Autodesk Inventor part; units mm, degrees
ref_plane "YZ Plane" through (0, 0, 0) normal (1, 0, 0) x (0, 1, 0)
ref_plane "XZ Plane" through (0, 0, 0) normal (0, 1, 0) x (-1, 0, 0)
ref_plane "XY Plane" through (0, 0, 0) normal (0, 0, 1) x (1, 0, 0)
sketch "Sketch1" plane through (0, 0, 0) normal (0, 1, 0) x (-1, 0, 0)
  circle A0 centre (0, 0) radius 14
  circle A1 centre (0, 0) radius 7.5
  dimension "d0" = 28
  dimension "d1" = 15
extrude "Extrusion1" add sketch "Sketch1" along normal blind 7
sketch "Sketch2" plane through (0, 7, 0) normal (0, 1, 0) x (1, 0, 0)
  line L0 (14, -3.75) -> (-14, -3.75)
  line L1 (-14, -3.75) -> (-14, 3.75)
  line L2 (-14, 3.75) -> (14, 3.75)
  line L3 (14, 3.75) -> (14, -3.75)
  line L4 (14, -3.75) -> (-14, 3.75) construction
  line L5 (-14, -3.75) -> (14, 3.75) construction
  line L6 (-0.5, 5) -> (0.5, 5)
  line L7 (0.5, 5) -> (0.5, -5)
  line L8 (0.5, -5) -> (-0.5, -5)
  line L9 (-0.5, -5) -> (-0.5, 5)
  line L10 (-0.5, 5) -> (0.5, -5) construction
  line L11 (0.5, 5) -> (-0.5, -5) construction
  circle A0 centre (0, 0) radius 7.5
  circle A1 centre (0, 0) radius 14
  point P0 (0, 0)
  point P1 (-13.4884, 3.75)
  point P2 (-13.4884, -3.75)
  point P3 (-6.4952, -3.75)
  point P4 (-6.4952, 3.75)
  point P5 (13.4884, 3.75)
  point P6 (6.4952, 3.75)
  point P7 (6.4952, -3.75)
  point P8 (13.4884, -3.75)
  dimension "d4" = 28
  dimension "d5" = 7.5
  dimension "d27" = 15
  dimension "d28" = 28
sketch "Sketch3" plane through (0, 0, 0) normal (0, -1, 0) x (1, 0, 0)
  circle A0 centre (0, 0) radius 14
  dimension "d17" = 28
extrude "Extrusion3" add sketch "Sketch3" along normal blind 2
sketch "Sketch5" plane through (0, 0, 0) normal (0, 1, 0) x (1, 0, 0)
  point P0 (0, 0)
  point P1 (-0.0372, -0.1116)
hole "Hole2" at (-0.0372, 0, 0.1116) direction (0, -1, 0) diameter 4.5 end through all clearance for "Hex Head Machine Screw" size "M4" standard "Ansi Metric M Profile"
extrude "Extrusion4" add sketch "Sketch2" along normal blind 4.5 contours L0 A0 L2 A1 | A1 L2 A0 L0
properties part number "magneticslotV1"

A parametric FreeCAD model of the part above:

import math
import FreeCAD as App
import Part
import Sketcher

V = App.Vector

doc = App.newDocument("Part")
body = doc.addObject("PartDesign::Body", "Body")

# Sketch on XZ plane
sketch1 = body.newObject("Sketcher::SketchObject", "Sketch")
sketch1.AttachmentSupport = (doc.getObject("XZ_Plane"), [""])
sketch1.MapMode = "FlatFace"
sketch1.addGeometry([
    Part.Circle(V(0, 0, 0), V(0, 0, 1), 14),
    Part.Circle(V(0, 0, 0), V(0, 0, 1), 7.5),
], False)
sketch1.addConstraint([
    Sketcher.Constraint("Coincident", 0, 3, -1, 1),
    Sketcher.Constraint("Coincident", 1, 3, -1, 1),
    Sketcher.Constraint("Diameter", 0, 28.0),
    Sketcher.Constraint("Diameter", 1, 15.0),
])
pad1 = body.newObject("PartDesign::Pad", "Pad")
pad1.Profile = sketch1
pad1.Length = 7
pad1.Reversed = True

# Sketch on XZ plane
sketch2 = body.newObject("Sketcher::SketchObject", "Sketch001")
sketch2.AttachmentSupport = (doc.getObject("XZ_Plane"), [""])
sketch2.MapMode = "FlatFace"
sketch2.addGeometry(Part.Circle(V(0, 0, 0), V(0, 0, 1), 14), False)
sketch2.addConstraint([
    Sketcher.Constraint("Coincident", 0, 3, -1, 1),
    Sketcher.Constraint("Diameter", 0, 28.0),
])
pad2 = body.newObject("PartDesign::Pad", "Pad001")
pad2.Profile = sketch2
pad2.Length = 2

# Sketch on XZ plane
sketch3 = body.newObject("Sketcher::SketchObject", "Sketch002")
sketch3.AttachmentSupport = (doc.getObject("XZ_Plane"), [""])
sketch3.MapMode = "FlatFace"
sketch3.addGeometry(Part.Circle(V(-0.0372, 0.1116, 0), V(0, 0, 1), 2.25), False)
sketch3.addConstraint([
    Sketcher.Constraint("Diameter", 0, 4.5),
    Sketcher.Constraint("DistanceX", 0, 3, -1, 1, 0.0372),
    Sketcher.Constraint("DistanceY", -1, 1, 0, 3, 0.1116),
])
doc.recompute()
hole = body.newObject("PartDesign::Hole", "Hole")
hole.Profile = sketch3
hole.ThreadType = "None"
hole.Diameter = 4.5
hole.DepthType = "ThroughAll"
hole.Reversed = True

# Sketch on XZ plane
sketch4 = body.newObject("Sketcher::SketchObject", "Sketch003")
sketch4.AttachmentSupport = (doc.getObject("XZ_Plane"), [""])
sketch4.MapMode = "FlatFace"
sketch4.AttachmentOffset = App.Placement(V(0, 0, -7), App.Rotation())
sketch4.addGeometry([
    Part.LineSegment(V(6.495191, 3.75, 0), V(13.488421, 3.75, 0)),  # 0
    Part.ArcOfCircle(Part.Circle(V(0, 0, 0), V(0, 0, 1), 14), math.radians(-15.536794), math.radians(15.536794)),  # 1
    Part.LineSegment(V(13.488421, -3.75, 0), V(6.495191, -3.75, 0)),  # 2
    Part.ArcOfCircle(Part.Circle(V(0, 0, 0), V(0, 0, 1), 7.5), math.radians(-30), math.radians(30)),  # 3
    Part.ArcOfCircle(Part.Circle(V(0, 0, 0), V(0, 0, 1), 14), math.radians(164.463206), math.radians(195.536794)),  # 4
    Part.LineSegment(V(-13.488421, 3.75, 0), V(-6.495191, 3.75, 0)),  # 5
    Part.ArcOfCircle(Part.Circle(V(0, 0, 0), V(0, 0, 1), 7.5), math.radians(150), math.radians(210)),  # 6
    Part.LineSegment(V(-6.495191, -3.75, 0), V(-13.488421, -3.75, 0)),  # 7
], False)
sketch4.addConstraint([
    Sketcher.Constraint("Coincident", 0, 2, 1, 2),
    Sketcher.Constraint("Coincident", 1, 1, 2, 1),
    Sketcher.Constraint("Coincident", 2, 2, 3, 1),
    Sketcher.Constraint("Coincident", 3, 2, 0, 1),
    Sketcher.Constraint("Coincident", 4, 1, 5, 1),
    Sketcher.Constraint("Coincident", 5, 2, 6, 1),
    Sketcher.Constraint("Coincident", 6, 2, 7, 1),
    Sketcher.Constraint("Coincident", 7, 2, 4, 2),
    Sketcher.Constraint("Horizontal", 0),
    Sketcher.Constraint("Horizontal", 2),
    Sketcher.Constraint("Horizontal", 5),
    Sketcher.Constraint("Horizontal", 7),
    Sketcher.Constraint("Coincident", 1, 3, -1, 1),
    Sketcher.Constraint("Coincident", 3, 3, -1, 1),
    Sketcher.Constraint("Coincident", 4, 3, -1, 1),
    Sketcher.Constraint("Coincident", 6, 3, -1, 1),
    Sketcher.Constraint("Equal", 1, 4),
    Sketcher.Constraint("Equal", 3, 6),
    Sketcher.Constraint("Horizontal", 3, 2, 4, 1),
    Sketcher.Constraint("Horizontal", 2, 2, 6, 2),
    Sketcher.Constraint("Vertical", 0, 2, 1, 1),
    Sketcher.Constraint("Radius", 1, 14.0),
    Sketcher.Constraint("Radius", 3, 7.5),
    Sketcher.Constraint("DistanceY", 1, 1, 0, 2, 7.5),
])
pad3 = body.newObject("PartDesign::Pad", "Pad002")
pad3.Profile = sketch4
pad3.Length = 4.5
pad3.Reversed = True

doc.recompute()
